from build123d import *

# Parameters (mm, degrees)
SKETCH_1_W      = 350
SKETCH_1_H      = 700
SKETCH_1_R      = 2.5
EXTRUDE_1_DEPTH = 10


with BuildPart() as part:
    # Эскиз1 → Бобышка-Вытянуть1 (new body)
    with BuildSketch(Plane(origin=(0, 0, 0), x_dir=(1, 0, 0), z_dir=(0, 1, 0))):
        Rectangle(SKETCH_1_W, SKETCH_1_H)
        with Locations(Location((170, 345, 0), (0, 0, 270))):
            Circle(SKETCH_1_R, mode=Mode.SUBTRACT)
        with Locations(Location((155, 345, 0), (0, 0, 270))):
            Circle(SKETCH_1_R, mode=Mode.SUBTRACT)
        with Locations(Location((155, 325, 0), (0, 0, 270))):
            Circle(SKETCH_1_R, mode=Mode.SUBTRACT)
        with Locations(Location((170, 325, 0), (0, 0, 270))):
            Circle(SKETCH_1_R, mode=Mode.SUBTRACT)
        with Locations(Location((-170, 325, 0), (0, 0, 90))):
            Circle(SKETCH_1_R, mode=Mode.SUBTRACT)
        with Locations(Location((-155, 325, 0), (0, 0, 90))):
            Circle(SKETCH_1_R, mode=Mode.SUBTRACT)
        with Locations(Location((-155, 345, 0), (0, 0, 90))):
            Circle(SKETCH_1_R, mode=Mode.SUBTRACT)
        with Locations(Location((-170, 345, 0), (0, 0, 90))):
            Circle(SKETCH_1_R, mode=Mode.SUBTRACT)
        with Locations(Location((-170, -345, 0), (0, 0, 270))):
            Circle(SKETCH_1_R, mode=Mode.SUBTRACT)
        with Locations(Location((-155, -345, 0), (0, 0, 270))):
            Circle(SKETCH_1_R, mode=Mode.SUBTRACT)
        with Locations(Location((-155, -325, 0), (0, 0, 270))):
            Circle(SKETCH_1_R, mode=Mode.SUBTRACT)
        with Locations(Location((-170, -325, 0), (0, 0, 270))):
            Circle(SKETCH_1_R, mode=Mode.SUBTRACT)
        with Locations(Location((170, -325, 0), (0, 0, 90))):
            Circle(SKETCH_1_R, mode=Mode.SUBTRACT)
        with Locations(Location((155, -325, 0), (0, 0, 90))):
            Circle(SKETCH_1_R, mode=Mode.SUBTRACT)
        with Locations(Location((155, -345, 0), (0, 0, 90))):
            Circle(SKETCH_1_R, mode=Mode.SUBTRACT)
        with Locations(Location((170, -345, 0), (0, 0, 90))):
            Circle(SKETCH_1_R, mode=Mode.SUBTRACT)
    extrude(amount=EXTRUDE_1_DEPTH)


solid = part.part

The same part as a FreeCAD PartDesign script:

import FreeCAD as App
import Part
import Sketcher
from FreeCAD import Vector
Q = App.Units.Quantity


def add_polygon(sketch, points):
    """Adds a closed chain of lines whose ends are joined by coincident constraints."""
    first, n = sketch.GeometryCount, len(points)
    for a, b in zip(points, points[1:] + points[:1]):
        sketch.addGeometry(Part.LineSegment(App.Vector(*a, 0), App.Vector(*b, 0)), False)
    for i in range(n):
        sketch.addConstraint(Sketcher.Constraint("Coincident", first + i, 2, first + (i + 1) % n, 1))

doc = App.newDocument("Part")
params = doc.addObject("Spreadsheet::Sheet", "Params")
for row, (alias, value) in enumerate([
    ("sketch1_diameter", "5 mm"),
    ("sketch1_width", "350 mm"),
    ("sketch1_height", "700 mm"),
    ("pad1_length", "10 mm"),
], start=1):
    params.set(f"A{row}", alias)
    params.set(f"B{row}", "=" + value)
    params.setAlias(f"B{row}", alias)

body = doc.addObject("PartDesign::Body", "Body")

# Sketch on XZ plane
sketch1 = body.newObject("Sketcher::SketchObject", "Sketch")
sketch1.AttachmentSupport = (doc.getObject("XZ_Plane"), [""])
sketch1.MapMode = "FlatFace"
add_polygon(sketch1, [(-175, -350), (-175, 350), (175, 350), (175, -350)])  # lines 0-3
sketch1.addGeometry(Part.Circle(Vector(-170, 345, 0), Vector(0, 0, 1), 2.5), False)  # 4
sketch1.addGeometry(Part.Circle(Vector(-155, 345, 0), Vector(0, 0, 1), 2.5), False)  # 5
sketch1.addGeometry(Part.Circle(Vector(-170, 325, 0), Vector(0, 0, 1), 2.5), False)  # 6
sketch1.addGeometry(Part.Circle(Vector(-155, 325, 0), Vector(0, 0, 1), 2.5), False)  # 7
sketch1.addGeometry(Part.Circle(Vector(155, 345, 0), Vector(0, 0, 1), 2.5), False)  # 8
sketch1.addGeometry(Part.Circle(Vector(170, 345, 0), Vector(0, 0, 1), 2.5), False)  # 9
sketch1.addGeometry(Part.Circle(Vector(155, 325, 0), Vector(0, 0, 1), 2.5), False)  # 10
sketch1.addGeometry(Part.Circle(Vector(170, 325, 0), Vector(0, 0, 1), 2.5), False)  # 11
sketch1.addGeometry(Part.Circle(Vector(-170, -325, 0), Vector(0, 0, 1), 2.5), False)  # 12
sketch1.addGeometry(Part.Circle(Vector(-155, -325, 0), Vector(0, 0, 1), 2.5), False)  # 13
sketch1.addGeometry(Part.Circle(Vector(-170, -345, 0), Vector(0, 0, 1), 2.5), False)  # 14
sketch1.addGeometry(Part.Circle(Vector(-155, -345, 0), Vector(0, 0, 1), 2.5), False)  # 15
sketch1.addGeometry(Part.Circle(Vector(155, -325, 0), Vector(0, 0, 1), 2.5), False)  # 16
sketch1.addGeometry(Part.Circle(Vector(170, -325, 0), Vector(0, 0, 1), 2.5), False)  # 17
sketch1.addGeometry(Part.Circle(Vector(155, -345, 0), Vector(0, 0, 1), 2.5), False)  # 18
sketch1.addGeometry(Part.Circle(Vector(170, -345, 0), Vector(0, 0, 1), 2.5), False)  # 19
sketch1.addConstraint(Sketcher.Constraint("Vertical", 0))
sketch1.addConstraint(Sketcher.Constraint("Horizontal", 1))
sketch1.addConstraint(Sketcher.Constraint("Vertical", 2))
sketch1.addConstraint(Sketcher.Constraint("Horizontal", 3))
sketch1.addConstraint(Sketcher.Constraint("Equal", 4, 5))
sketch1.addConstraint(Sketcher.Constraint("Equal", 5, 6))
sketch1.addConstraint(Sketcher.Constraint("Equal", 6, 7))
sketch1.addConstraint(Sketcher.Constraint("Equal", 7, 8))
sketch1.addConstraint(Sketcher.Constraint("Equal", 8, 9))
sketch1.addConstraint(Sketcher.Constraint("Equal", 9, 10))
sketch1.addConstraint(Sketcher.Constraint("Equal", 10, 11))
sketch1.addConstraint(Sketcher.Constraint("Equal", 11, 12))
sketch1.addConstraint(Sketcher.Constraint("Equal", 12, 13))
sketch1.addConstraint(Sketcher.Constraint("Equal", 13, 14))
sketch1.addConstraint(Sketcher.Constraint("Equal", 14, 15))
sketch1.addConstraint(Sketcher.Constraint("Equal", 15, 16))
sketch1.addConstraint(Sketcher.Constraint("Equal", 16, 17))
sketch1.addConstraint(Sketcher.Constraint("Equal", 17, 18))
sketch1.addConstraint(Sketcher.Constraint("Equal", 18, 19))
sketch1.addConstraint(Sketcher.Constraint("Symmetric", 11, 3, 12, 3, -1, 1))
sketch1.addConstraint(Sketcher.Constraint("Symmetric", 10, 3, 13, 3, -1, 1))
sketch1.addConstraint(Sketcher.Constraint("Symmetric", 9, 3, 14, 3, -1, 1))
sketch1.addConstraint(Sketcher.Constraint("Symmetric", 8, 3, 15, 3, -1, 1))
sketch1.addConstraint(Sketcher.Constraint("Symmetric", 7, 3, 16, 3, -1, 1))
sketch1.addConstraint(Sketcher.Constraint("Symmetric", 6, 3, 17, 3, -1, 1))
sketch1.addConstraint(Sketcher.Constraint("Symmetric", 5, 3, 18, 3, -1, 1))
sketch1.addConstraint(Sketcher.Constraint("Symmetric", 4, 3, 19, 3, -1, 1))
sketch1.addConstraint(Sketcher.Constraint("Symmetric", 0, 2, 2, 2, -1, 1))
sketch1.addConstraint(Sketcher.Constraint("Symmetric", 5, 3, 8, 3, -2))
sketch1.addConstraint(Sketcher.Constraint("Symmetric", 4, 3, 9, 3, -2))
sketch1.addConstraint(Sketcher.Constraint("Symmetric", 7, 3, 10, 3, -2))
sketch1.addConstraint(Sketcher.Constraint("Symmetric", 6, 3, 11, 3, -2))
sketch1.addConstraint(Sketcher.Constraint("Horizontal", 4, 3, 5, 3))
sketch1.addConstraint(Sketcher.Constraint("Horizontal", 6, 3, 7, 3))
sketch1.addConstraint(Sketcher.Constraint("Vertical", 4, 3, 6, 3))
sketch1.addConstraint(Sketcher.Constraint("Vertical", 5, 3, 7, 3))
sketch1.addConstraint(Sketcher.Constraint("Diameter", 4, Q("5 mm")))
sketch1.addConstraint(Sketcher.Constraint("DistanceX", 1, 1, 1, 2, Q("350 mm")))
sketch1.addConstraint(Sketcher.Constraint("DistanceY", 0, 1, 0, 2, Q("700 mm")))
sketch1.addConstraint(Sketcher.Constraint("DistanceX", 4, 3, -1, 1, Q("170 mm")))
sketch1.addConstraint(Sketcher.Constraint("DistanceY", -1, 1, 4, 3, Q("345 mm")))
sketch1.addConstraint(Sketcher.Constraint("DistanceX", 5, 3, -1, 1, Q("155 mm")))
sketch1.addConstraint(Sketcher.Constraint("DistanceY", -1, 1, 6, 3, Q("325 mm")))
sketch1.setExpression("Constraints[40]", "Params.sketch1_diameter")
sketch1.setExpression("Constraints[41]", "Params.sketch1_width")
sketch1.setExpression("Constraints[42]", "Params.sketch1_height")
pad1 = body.newObject("PartDesign::Pad", "Pad")
pad1.Profile = sketch1
pad1.setExpression("Length", "Params.pad1_length")
pad1.Reversed = True

doc.recompute()
